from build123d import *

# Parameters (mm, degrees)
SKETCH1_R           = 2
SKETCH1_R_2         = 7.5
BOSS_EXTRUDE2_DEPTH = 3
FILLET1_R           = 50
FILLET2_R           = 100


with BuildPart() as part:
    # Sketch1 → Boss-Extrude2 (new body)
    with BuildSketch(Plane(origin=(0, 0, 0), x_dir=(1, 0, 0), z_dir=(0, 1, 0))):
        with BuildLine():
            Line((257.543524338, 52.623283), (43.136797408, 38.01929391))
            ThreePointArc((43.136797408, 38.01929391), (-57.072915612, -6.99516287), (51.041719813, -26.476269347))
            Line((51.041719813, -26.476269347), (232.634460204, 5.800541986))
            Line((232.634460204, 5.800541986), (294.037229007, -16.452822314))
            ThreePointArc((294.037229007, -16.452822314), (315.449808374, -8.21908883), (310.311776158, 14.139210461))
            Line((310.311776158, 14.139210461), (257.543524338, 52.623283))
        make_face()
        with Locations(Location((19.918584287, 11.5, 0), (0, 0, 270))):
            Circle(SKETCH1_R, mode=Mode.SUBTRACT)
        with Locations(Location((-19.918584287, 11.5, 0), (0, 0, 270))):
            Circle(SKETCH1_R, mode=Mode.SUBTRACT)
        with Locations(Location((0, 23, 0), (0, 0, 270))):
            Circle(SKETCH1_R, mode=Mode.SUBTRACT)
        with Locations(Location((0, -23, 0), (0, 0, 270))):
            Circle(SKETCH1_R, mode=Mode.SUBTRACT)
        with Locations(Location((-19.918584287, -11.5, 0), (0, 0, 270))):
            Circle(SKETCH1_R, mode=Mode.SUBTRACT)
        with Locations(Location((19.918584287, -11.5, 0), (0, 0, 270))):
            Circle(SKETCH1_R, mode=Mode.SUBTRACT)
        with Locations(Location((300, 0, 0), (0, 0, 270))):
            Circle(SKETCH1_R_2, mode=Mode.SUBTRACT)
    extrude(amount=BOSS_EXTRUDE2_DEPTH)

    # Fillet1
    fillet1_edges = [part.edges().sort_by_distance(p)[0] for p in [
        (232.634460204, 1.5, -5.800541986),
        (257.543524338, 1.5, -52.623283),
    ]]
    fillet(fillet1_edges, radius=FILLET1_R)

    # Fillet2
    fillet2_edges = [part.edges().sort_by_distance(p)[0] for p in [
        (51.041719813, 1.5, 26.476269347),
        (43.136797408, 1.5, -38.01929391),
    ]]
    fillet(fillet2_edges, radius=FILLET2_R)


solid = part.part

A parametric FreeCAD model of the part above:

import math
import FreeCAD as App
import Part
import Sketcher

V = App.Vector
Q = App.Units.Quantity


def edges_at(feature, points):
    """Names of the edges that pass closest to the given points."""
    edges = feature.Shape.Edges
    near = lambda p: min(range(len(edges)), key=lambda i: edges[i].distToShape(Part.Vertex(*p))[0])
    return sorted({f"Edge{near(p) + 1}" for p in points})

doc = App.newDocument("Part")
body = doc.addObject("PartDesign::Body", "Body")

# Sketch on XZ plane
sketch1 = doc.addObject("Sketcher::SketchObject", "Sketch")
body.addObject(sketch1)
sketch1.AttachmentSupport = (doc.XZ_Plane, [""])
sketch1.MapMode = "FlatFace"
sketch1.addGeometry(Part.LineSegment(V(257.5, -52.6, 0), V(43.1, -38, 0)), False)
sketch1.addGeometry(Part.ArcOfCircle(Part.Circle(V(0, 0, 0), V(0, 0, 1), 57.5), math.radians(27), math.radians(319)), False)
sketch1.addGeometry(Part.LineSegment(V(51, 26.5, 0), V(232.6, -5.8, 0)), False)
sketch1.addGeometry(Part.LineSegment(V(232.6, -5.8, 0), V(294, 16.5, 0)), False)
sketch1.addGeometry(Part.ArcOfCircle(Part.Circle(V(300, 0, 0), V(0, 0, 1), 17.5), math.radians(-54), math.radians(110)), False)
sketch1.addGeometry(Part.LineSegment(V(310.3, -14.1, 0), V(257.5, -52.6, 0)), False)
sketch1.addGeometry(Part.Circle(V(0, 23, 0), V(0, 0, 1), 2), False)
sketch1.addGeometry(Part.Circle(V(-19.9, 11.5, 0), V(0, 0, 1), 2), False)
sketch1.addGeometry(Part.Circle(V(19.9, 11.5, 0), V(0, 0, 1), 2), False)
sketch1.addGeometry(Part.Circle(V(-19.9, -11.5, 0), V(0, 0, 1), 2), False)
sketch1.addGeometry(Part.Circle(V(19.9, -11.5, 0), V(0, 0, 1), 2), False)
sketch1.addGeometry(Part.Circle(V(0, -23, 0), V(0, 0, 1), 2), False)
sketch1.addGeometry(Part.Circle(V(300, 0, 0), V(0, 0, 1), 7.5), False)
sketch1.addConstraint(Sketcher.Constraint("Coincident", 0, 2, 1, 2))
sketch1.addConstraint(Sketcher.Constraint("Coincident", 1, 1, 2, 1))
sketch1.addConstraint(Sketcher.Constraint("Coincident", 2, 2, 3, 1))
sketch1.addConstraint(Sketcher.Constraint("Tangent", 3, 2, 4, 2))
sketch1.addConstraint(Sketcher.Constraint("Tangent", 4, 1, 5, 1))
sketch1.addConstraint(Sketcher.Constraint("Coincident", 5, 2, 0, 1))
sketch1.addConstraint(Sketcher.Constraint("Coincident", 1, 3, -1, 1))
sketch1.addConstraint(Sketcher.Constraint("Coincident", 12, 3, 4, 3))
sketch1.addConstraint(Sketcher.Constraint("Equal", 6, 7))
sketch1.addConstraint(Sketcher.Constraint("Equal", 7, 8))
sketch1.addConstraint(Sketcher.Constraint("Equal", 8, 9))
sketch1.addConstraint(Sketcher.Constraint("Equal", 9, 10))
sketch1.addConstraint(Sketcher.Constraint("Equal", 10, 11))
sketch1.addConstraint(Sketcher.Constraint("Symmetric", 8, 3, 9, 3, -1, 1))
sketch1.addConstraint(Sketcher.Constraint("Symmetric", 7, 3, 10, 3, -1, 1))
sketch1.addConstraint(Sketcher.Constraint("Symmetric", 6, 3, 11, 3, -1, 1))
sketch1.addConstraint(Sketcher.Constraint("Symmetric", 7, 3, 8, 3, -2))
sketch1.addConstraint(Sketcher.Constraint("PointOnObject", 4, 3, -1))
sketch1.addConstraint(Sketcher.Constraint("PointOnObject", 6, 3, -2))
sketch1.addConstraint(Sketcher.Constraint("Equal", 3, 5))
sketch1.addConstraint(Sketcher.Constraint("Diameter", 6, Q("4 mm")))
sketch1.addConstraint(Sketcher.Constraint("Diameter", 12, Q("15 mm")))
sketch1.addConstraint(Sketcher.Constraint("Radius", 1, Q("57.5 mm")))
sketch1.addConstraint(Sketcher.Constraint("Radius", 4, Q("17.5 mm")))
sketch1.addConstraint(Sketcher.Constraint("DistanceX", -1, 1, 4, 3, Q("300 mm")))
sketch1.addConstraint(Sketcher.Constraint("DistanceY", -1, 1, 6, 3, Q("23 mm")))
sketch1.addConstraint(Sketcher.Constraint("DistanceY", 9, 3, 7, 3, Q("23 mm")))
sketch1.addConstraint(Sketcher.Constraint("Distance", 2, Q("184.438922 mm")))
sketch1.addConstraint(Sketcher.Constraint("Distance", 3, Q("65.310889 mm")))
sketch1.addConstraint(Sketcher.Constraint("DistanceX", -1, 1, 1, 1, Q("51.04172 mm")))
sketch1.addConstraint(Sketcher.Constraint("DistanceY", 4, 1, -1, 1, Q("14.13921 mm")))
sketch1.addConstraint(Sketcher.Constraint("DistanceX", 7, 3, 8, 3, Q("39.837169 mm")))
sketch1.addConstraint(Sketcher.Constraint("DistanceX", 9, 3, 0, 2, Q("63.055382 mm")))
pad1 = doc.addObject("PartDesign::Pad", "Pad")
body.addObject(pad1)
pad1.Profile = sketch1
pad1.Length = 3
pad1.Reversed = True
doc.recompute()

fillet = doc.addObject("PartDesign::Fillet", "Fillet")
body.addObject(fillet)
fillet.Base = (pad1, edges_at(pad1, [(232.634, 1.5, -5.801), (257.544, 1.5, -52.623)]))
fillet.Radius = 50
doc.recompute()

fillet2 = doc.addObject("PartDesign::Fillet", "Fillet001")
body.addObject(fillet2)
fillet2.Base = (fillet, edges_at(fillet, [(51.042, 1.5, 26.476), (43.137, 1.5, -38.019)]))
fillet2.Radius = 100

doc.recompute()
